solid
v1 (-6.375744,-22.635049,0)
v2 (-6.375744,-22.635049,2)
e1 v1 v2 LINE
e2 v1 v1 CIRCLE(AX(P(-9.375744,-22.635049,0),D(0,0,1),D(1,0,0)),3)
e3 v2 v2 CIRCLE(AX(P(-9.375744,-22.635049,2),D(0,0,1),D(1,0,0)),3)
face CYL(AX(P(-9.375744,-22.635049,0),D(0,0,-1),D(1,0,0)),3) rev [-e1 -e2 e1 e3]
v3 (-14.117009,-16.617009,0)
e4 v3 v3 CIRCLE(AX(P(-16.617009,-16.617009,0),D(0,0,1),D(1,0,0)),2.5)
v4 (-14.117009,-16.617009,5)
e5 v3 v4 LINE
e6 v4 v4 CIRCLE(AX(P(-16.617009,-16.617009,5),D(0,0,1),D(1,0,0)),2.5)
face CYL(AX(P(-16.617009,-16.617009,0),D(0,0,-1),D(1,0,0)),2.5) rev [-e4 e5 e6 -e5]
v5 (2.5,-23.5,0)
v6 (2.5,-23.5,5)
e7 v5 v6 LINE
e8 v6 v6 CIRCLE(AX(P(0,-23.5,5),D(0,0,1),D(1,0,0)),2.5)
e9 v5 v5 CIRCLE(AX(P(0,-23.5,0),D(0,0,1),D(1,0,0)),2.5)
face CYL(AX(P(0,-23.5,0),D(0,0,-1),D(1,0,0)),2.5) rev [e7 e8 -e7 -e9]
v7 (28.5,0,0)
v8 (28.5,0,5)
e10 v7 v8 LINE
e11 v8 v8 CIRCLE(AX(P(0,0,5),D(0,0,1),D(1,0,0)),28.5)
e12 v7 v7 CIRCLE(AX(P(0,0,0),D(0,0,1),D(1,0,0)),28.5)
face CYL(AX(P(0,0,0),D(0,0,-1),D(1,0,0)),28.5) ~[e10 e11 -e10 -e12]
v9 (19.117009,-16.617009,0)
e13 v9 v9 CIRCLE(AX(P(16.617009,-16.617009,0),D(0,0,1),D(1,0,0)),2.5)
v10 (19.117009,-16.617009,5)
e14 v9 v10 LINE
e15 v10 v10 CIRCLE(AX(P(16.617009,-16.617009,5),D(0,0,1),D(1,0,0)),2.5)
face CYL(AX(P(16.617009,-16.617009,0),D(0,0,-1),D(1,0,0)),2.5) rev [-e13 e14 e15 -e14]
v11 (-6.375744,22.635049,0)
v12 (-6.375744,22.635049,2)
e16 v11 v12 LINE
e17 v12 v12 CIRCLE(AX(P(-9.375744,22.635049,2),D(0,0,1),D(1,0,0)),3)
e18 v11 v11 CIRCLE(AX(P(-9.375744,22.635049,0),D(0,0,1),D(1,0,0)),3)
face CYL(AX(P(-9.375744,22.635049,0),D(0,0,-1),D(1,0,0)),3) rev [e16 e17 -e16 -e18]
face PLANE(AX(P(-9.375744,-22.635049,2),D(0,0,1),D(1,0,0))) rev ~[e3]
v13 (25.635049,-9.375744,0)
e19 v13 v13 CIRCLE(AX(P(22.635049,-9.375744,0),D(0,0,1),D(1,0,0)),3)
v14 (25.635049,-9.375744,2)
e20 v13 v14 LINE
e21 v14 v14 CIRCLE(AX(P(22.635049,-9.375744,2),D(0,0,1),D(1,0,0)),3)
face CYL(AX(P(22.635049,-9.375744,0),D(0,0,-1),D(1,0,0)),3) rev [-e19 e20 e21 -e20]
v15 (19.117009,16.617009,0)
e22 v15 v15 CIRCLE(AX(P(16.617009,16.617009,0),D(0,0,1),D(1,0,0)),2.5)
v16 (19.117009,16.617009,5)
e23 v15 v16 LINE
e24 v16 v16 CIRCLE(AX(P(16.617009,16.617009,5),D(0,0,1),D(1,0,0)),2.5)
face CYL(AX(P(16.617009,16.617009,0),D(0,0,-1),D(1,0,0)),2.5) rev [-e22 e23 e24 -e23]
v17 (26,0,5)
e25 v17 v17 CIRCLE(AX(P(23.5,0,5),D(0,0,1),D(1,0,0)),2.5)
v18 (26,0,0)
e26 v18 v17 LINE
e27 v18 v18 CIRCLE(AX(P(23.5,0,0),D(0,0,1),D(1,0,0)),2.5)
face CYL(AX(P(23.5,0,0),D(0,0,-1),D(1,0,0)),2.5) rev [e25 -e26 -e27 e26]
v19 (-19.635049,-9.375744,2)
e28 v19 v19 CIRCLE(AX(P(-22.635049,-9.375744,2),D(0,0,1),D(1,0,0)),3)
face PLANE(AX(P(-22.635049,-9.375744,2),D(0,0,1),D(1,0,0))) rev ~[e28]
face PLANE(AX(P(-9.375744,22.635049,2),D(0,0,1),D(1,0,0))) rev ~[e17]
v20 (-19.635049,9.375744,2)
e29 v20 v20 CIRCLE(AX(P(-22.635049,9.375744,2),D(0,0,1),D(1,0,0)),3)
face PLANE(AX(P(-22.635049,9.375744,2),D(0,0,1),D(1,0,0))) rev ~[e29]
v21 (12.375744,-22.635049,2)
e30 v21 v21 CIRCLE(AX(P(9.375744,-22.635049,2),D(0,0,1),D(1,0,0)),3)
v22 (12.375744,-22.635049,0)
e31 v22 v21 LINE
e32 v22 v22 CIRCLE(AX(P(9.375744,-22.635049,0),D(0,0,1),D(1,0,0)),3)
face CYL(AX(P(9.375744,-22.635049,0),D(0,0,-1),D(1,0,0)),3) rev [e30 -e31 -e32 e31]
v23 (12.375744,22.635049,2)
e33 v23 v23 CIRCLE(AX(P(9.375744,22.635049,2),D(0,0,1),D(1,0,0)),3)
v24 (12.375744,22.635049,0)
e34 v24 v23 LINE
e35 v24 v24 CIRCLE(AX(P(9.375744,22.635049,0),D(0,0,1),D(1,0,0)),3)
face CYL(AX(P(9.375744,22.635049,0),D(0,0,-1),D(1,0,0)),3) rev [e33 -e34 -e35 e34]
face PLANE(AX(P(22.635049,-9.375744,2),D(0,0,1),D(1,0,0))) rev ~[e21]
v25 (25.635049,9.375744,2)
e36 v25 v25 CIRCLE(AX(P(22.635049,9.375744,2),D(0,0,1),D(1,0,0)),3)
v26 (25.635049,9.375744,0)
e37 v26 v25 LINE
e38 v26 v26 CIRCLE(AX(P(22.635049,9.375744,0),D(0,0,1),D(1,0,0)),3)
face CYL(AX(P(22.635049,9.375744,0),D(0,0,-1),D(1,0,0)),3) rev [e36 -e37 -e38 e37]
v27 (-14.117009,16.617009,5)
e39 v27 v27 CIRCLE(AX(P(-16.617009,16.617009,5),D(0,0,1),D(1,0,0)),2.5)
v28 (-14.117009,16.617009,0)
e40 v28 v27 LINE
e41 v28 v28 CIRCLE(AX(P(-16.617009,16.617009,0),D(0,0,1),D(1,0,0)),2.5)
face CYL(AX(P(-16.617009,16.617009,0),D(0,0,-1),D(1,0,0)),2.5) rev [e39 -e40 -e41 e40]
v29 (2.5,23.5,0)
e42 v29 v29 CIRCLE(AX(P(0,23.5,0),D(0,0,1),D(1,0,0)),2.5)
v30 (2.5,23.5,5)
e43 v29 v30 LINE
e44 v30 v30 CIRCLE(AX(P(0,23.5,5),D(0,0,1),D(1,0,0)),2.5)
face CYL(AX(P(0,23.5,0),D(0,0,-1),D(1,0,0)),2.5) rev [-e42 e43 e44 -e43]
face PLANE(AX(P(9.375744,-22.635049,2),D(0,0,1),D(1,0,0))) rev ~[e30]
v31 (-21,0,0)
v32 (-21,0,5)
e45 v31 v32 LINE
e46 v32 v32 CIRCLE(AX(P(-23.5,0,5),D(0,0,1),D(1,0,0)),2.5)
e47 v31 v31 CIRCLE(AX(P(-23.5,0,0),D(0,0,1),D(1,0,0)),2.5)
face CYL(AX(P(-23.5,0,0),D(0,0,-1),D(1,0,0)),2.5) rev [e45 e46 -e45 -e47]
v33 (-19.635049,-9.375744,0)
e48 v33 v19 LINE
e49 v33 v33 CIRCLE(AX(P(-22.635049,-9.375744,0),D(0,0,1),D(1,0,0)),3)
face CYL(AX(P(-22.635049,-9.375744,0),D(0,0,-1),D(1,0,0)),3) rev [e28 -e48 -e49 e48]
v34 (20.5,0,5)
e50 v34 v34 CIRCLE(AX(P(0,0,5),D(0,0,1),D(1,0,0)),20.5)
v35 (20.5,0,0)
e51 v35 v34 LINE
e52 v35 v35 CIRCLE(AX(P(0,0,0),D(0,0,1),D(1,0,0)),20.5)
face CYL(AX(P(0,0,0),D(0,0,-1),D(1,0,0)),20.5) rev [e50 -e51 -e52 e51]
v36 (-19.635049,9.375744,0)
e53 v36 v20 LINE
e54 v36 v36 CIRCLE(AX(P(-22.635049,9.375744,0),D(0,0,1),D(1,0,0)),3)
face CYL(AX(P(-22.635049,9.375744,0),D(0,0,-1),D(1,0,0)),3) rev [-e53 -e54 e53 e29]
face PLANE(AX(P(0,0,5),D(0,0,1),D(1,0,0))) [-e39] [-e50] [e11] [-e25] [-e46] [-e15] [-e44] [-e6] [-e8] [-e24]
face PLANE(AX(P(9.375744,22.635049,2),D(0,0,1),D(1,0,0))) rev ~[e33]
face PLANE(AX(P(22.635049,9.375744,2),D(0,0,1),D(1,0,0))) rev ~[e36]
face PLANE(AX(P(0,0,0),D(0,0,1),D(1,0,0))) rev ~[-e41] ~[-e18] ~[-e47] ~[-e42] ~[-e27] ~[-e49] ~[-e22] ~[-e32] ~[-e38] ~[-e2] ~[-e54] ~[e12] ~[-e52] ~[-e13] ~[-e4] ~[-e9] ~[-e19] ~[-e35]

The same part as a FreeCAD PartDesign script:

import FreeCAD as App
import Part
import Sketcher

doc = App.newDocument("Part")
params = doc.addObject("Spreadsheet::Sheet", "Params")
for row, (alias, value) in enumerate([
    ("sketch1_diameter", "57 mm"),
    ("sketch1_diameter2", "5 mm"),
    ("sketch1_diameter3", "41 mm"),
    ("pad1_length", "5 mm"),
    ("sketch2_diameter", "6 mm"),
    ("pocket1_length", "2 mm"),
], start=1):
    params.set(f"A{row}", alias)
    params.set(f"B{row}", "=" + value)
    params.setAlias(f"B{row}", alias)

body = doc.addObject("PartDesign::Body", "Body")

# Sketch on XY plane
sketch1 = doc.addObject("Sketcher::SketchObject", "Sketch")
body.addObject(sketch1)
sketch1.AttachmentSupport = (doc.XY_Plane, [""])
sketch1.MapMode = "FlatFace"
sketch1.addGeometry([
    Part.Circle(App.Vector(0, 0, 0), App.Vector(0, 0, 1), 28.5),  # 0
    Part.Circle(App.Vector(-16.617009, -16.617009, 0), App.Vector(0, 0, 1), 2.5),  # 1
    Part.Circle(App.Vector(0, -23.5, 0), App.Vector(0, 0, 1), 2.5),  # 2
    Part.Circle(App.Vector(16.617009, -16.617009, 0), App.Vector(0, 0, 1), 2.5),  # 3
    Part.Circle(App.Vector(-23.5, 0, 0), App.Vector(0, 0, 1), 2.5),  # 4
    Part.Circle(App.Vector(-16.617009, 16.617009, 0), App.Vector(0, 0, 1), 2.5),  # 5
    Part.Circle(App.Vector(0, 0, 0), App.Vector(0, 0, 1), 20.5),  # 6
    Part.Circle(App.Vector(23.5, 0, 0), App.Vector(0, 0, 1), 2.5),  # 7
    Part.Circle(App.Vector(0, 23.5, 0), App.Vector(0, 0, 1), 2.5),  # 8
    Part.Circle(App.Vector(16.617009, 16.617009, 0), App.Vector(0, 0, 1), 2.5),  # 9
], False)
sketch1.addConstraint([
    Sketcher.Constraint("Coincident", 0, 3, -1, 1),
    Sketcher.Constraint("Coincident", 6, 3, -1, 1),
    Sketcher.Constraint("Equal", 1, 2),
    Sketcher.Constraint("Equal", 2, 3),
    Sketcher.Constraint("Equal", 3, 4),
    Sketcher.Constraint("Equal", 4, 5),
    Sketcher.Constraint("Equal", 5, 7),
    Sketcher.Constraint("Equal", 7, 8),
    Sketcher.Constraint("Equal", 8, 9),
    Sketcher.Constraint("Symmetric", 3, 3, 5, 3, -1, 1),
    Sketcher.Constraint("Symmetric", 4, 3, 7, 3, -1, 1),
    Sketcher.Constraint("Symmetric", 2, 3, 8, 3, -1, 1),
    Sketcher.Constraint("Symmetric", 1, 3, 9, 3, -1, 1),
    Sketcher.Constraint("Symmetric", 1, 3, 3, 3, -2),
    Sketcher.Constraint("PointOnObject", 2, 3, -2),
    Sketcher.Constraint("PointOnObject", 4, 3, -1),
    Sketcher.Constraint("Diameter", 0, 57.0),
    Sketcher.Constraint("Diameter", 1, 5.0),
    Sketcher.Constraint("Diameter", 6, 41.0),
    Sketcher.Constraint("DistanceY", 2, 3, -1, 1, 23.5),
    Sketcher.Constraint("DistanceX", 4, 3, -1, 1, 23.5),
    Sketcher.Constraint("DistanceX", 1, 3, -1, 1, 16.617009),
    Sketcher.Constraint("DistanceY", 1, 3, -1, 1, 16.617009),
])
sketch1.setExpression("Constraints[16]", "Params.sketch1_diameter")
sketch1.setExpression("Constraints[17]", "Params.sketch1_diameter2")
sketch1.setExpression("Constraints[18]", "Params.sketch1_diameter3")
pad1 = doc.addObject("PartDesign::Pad", "Pad")
body.addObject(pad1)
pad1.Profile = sketch1
pad1.setExpression("Length", "Params.pad1_length")

# Sketch on XY plane
sketch2 = doc.addObject("Sketcher::SketchObject", "Sketch001")
body.addObject(sketch2)
sketch2.AttachmentSupport = (doc.XY_Plane, [""])
sketch2.MapMode = "FlatFace"
sketch2.addGeometry([
    Part.Circle(App.Vector(-22.635049, -9.375744, 0), App.Vector(0, 0, 1), 3),  # 0
    Part.Circle(App.Vector(-9.375744, -22.635049, 0), App.Vector(0, 0, 1), 3),  # 1
    Part.Circle(App.Vector(9.375744, -22.635049, 0), App.Vector(0, 0, 1), 3),  # 2
    Part.Circle(App.Vector(22.635049, -9.375744, 0), App.Vector(0, 0, 1), 3),  # 3
    Part.Circle(App.Vector(22.635049, 9.375744, 0), App.Vector(0, 0, 1), 3),  # 4
    Part.Circle(App.Vector(9.375744, 22.635049, 0), App.Vector(0, 0, 1), 3),  # 5
    Part.Circle(App.Vector(-9.375744, 22.635049, 0), App.Vector(0, 0, 1), 3),  # 6
    Part.Circle(App.Vector(-22.635049, 9.375744, 0), App.Vector(0, 0, 1), 3),  # 7
], False)
sketch2.addConstraint([
    Sketcher.Constraint("Equal", 0, 1),
    Sketcher.Constraint("Equal", 1, 2),
    Sketcher.Constraint("Equal", 2, 3),
    Sketcher.Constraint("Equal", 3, 4),
    Sketcher.Constraint("Equal", 4, 5),
    Sketcher.Constraint("Equal", 5, 6),
    Sketcher.Constraint("Equal", 6, 7),
    Sketcher.Constraint("Symmetric", 0, 3, 4, 3, -1, 1),
    Sketcher.Constraint("Symmetric", 1, 3, 5, 3, -1, 1),
    Sketcher.Constraint("Symmetric", 2, 3, 6, 3, -1, 1),
    Sketcher.Constraint("Symmetric", 3, 3, 7, 3, -1, 1),
    Sketcher.Constraint("Symmetric", 1, 3, 2, 3, -2),
    Sketcher.Constraint("Symmetric", 0, 3, 3, 3, -2),
    Sketcher.Constraint("Diameter", 0, 6.0),
    Sketcher.Constraint("DistanceX", 0, 3, -1, 1, 22.635049),
    Sketcher.Constraint("DistanceY", 1, 3, -1, 1, 22.635049),
    Sketcher.Constraint("DistanceX", 1, 3, 2, 3, 18.751488),
    Sketcher.Constraint("DistanceY", 3, 3, 4, 3, 18.751488),
])
sketch2.setExpression("Constraints[13]", "Params.sketch2_diameter")
pocket1 = doc.addObject("PartDesign::Pocket", "Pocket")
body.addObject(pocket1)
pocket1.Profile = sketch2
pocket1.setExpression("Length", "Params.pocket1_length")
pocket1.Reversed = True

doc.recompute()
